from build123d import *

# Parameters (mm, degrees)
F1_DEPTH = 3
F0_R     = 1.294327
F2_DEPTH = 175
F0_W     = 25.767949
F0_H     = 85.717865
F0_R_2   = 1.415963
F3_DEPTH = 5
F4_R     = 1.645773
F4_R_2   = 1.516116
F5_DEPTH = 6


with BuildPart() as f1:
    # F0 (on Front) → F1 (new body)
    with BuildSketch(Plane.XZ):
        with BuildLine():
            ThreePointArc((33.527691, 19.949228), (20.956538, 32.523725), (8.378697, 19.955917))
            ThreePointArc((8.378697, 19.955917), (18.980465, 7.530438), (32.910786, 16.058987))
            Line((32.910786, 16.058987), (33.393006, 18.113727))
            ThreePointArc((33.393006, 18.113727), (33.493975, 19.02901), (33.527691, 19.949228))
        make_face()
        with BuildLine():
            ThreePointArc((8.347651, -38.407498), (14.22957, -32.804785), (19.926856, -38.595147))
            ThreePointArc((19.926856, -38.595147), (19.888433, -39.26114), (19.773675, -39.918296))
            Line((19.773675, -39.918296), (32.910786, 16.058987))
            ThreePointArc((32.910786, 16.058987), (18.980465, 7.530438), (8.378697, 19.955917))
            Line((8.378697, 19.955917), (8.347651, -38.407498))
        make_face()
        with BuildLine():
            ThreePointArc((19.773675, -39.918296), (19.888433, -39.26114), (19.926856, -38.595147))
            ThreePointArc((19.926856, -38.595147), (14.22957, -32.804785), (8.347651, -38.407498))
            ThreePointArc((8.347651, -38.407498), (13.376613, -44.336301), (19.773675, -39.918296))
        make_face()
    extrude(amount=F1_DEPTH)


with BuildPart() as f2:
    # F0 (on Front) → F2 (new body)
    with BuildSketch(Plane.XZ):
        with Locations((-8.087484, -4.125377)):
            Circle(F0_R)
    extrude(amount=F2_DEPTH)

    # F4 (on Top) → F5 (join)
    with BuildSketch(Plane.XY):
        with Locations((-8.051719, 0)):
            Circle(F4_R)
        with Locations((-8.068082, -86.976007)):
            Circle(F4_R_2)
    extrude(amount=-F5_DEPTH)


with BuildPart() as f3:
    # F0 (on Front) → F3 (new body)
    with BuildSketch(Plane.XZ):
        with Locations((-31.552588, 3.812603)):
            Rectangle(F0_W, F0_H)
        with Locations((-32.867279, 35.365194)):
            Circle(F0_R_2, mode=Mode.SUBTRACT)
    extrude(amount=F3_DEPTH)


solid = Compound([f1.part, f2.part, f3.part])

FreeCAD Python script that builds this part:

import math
import FreeCAD as App
import Part
import Sketcher

V = App.Vector

doc = App.newDocument("Part")
body = doc.addObject("PartDesign::Body", "Body")

# Sketch on XZ plane
sketch1 = body.newObject("Sketcher::SketchObject", "Sketch")
sketch1.AttachmentSupport = (doc.getObject("XZ_Plane"), [""])
sketch1.MapMode = "FlatFace"
sketch1.addGeometry(Part.ArcOfCircle(Part.Circle(V(20.953193, 19.949228, 0), V(0, 0, 1), 12.574498), math.radians(0.000002), math.radians(179.969519)), False)
sketch1.addGeometry(Part.LineSegment(V(8.378697, 19.955917, 0), V(8.347651, -38.407498, 0)), False)
sketch1.addGeometry(Part.ArcOfCircle(Part.Circle(V(14.135733, -38.595147, 0), V(0, 0, 1), 5.791123), math.radians(178.143124), math.radians(346.792474)), False)
sketch1.addGeometry(Part.LineSegment(V(19.773675, -39.918296, 0), V(32.910786, 16.058987, 0)), False)
sketch1.addGeometry(Part.LineSegment(V(32.910786, 16.058987, 0), V(33.393006, 18.113727, 0)), False)
sketch1.addGeometry(Part.ArcOfCircle(Part.Circle(V(20.953321, 19.949215, 0), V(0, 0, 1), 12.57437), math.radians(-8.393489), math.radians(0.000057)), False)
sketch1.addConstraint(Sketcher.Constraint("Coincident", 0, 2, 1, 1))
sketch1.addConstraint(Sketcher.Constraint("Coincident", 1, 2, 2, 1))
sketch1.addConstraint(Sketcher.Constraint("Coincident", 2, 2, 3, 1))
sketch1.addConstraint(Sketcher.Constraint("Coincident", 3, 2, 4, 1))
sketch1.addConstraint(Sketcher.Constraint("Coincident", 4, 2, 5, 1))
sketch1.addConstraint(Sketcher.Constraint("Coincident", 5, 2, 0, 1))
sketch1.addConstraint(Sketcher.Constraint("Radius", 5, 12.57437))
sketch1.addConstraint(Sketcher.Constraint("Radius", 0, 12.574498))
sketch1.addConstraint(Sketcher.Constraint("Radius", 2, 5.791123))
sketch1.addConstraint(Sketcher.Constraint("DistanceY", 5, 3, 0, 2, 0.006702))
sketch1.addConstraint(Sketcher.Constraint("DistanceY", 4, 2, 0, 3, 1.835501))
sketch1.addConstraint(Sketcher.Constraint("DistanceY", 4, 2, 5, 2, 1.835501))
sketch1.addConstraint(Sketcher.Constraint("DistanceX", -1, 1, 5, 3, 20.953321))
sketch1.addConstraint(Sketcher.Constraint("DistanceX", -1, 1, 1, 2, 8.347651))
sketch1.addConstraint(Sketcher.Constraint("DistanceY", -1, 1, 5, 2, 19.949228))
sketch1.addConstraint(Sketcher.Constraint("DistanceX", 2, 3, 0, 3, 6.81746))
sketch1.addConstraint(Sketcher.Constraint("DistanceY", 0, 3, 0, 2, 0.006689))
sketch1.addConstraint(Sketcher.Constraint("DistanceX", 2, 3, 2, 2, 5.637942))
sketch1.addConstraint(Sketcher.Constraint("DistanceY", 2, 2, 5, 3, 59.867511))
sketch1.addConstraint(Sketcher.Constraint("DistanceY", 3, 2, 5, 3, 3.890228))
sketch1.addConstraint(Sketcher.Constraint("DistanceX", 0, 2, 3, 2, 24.532089))
pad1 = body.newObject("PartDesign::Pad", "Pad")
pad1.Profile = sketch1
pad1.Length = 3
body2 = doc.addObject("PartDesign::Body", "Body001")

# Sketch on XZ plane
sketch2 = body2.newObject("Sketcher::SketchObject", "Sketch001")
sketch2.AttachmentSupport = (doc.getObject("XZ_Plane001"), [""])
sketch2.MapMode = "FlatFace"
sketch2.addGeometry(Part.Circle(V(-8.087484, -4.125377, 0), V(0, 0, 1), 1.294327), False)
sketch2.addConstraint(Sketcher.Constraint("Diameter", 0, 2.588654))
sketch2.addConstraint(Sketcher.Constraint("DistanceX", 0, 3, -1, 1, 8.087484))
sketch2.addConstraint(Sketcher.Constraint("DistanceY", 0, 3, -1, 1, 4.125377))
pad2 = body2.newObject("PartDesign::Pad", "Pad001")
pad2.Profile = sketch2
pad2.Length = 175

# Sketch on XY plane
sketch3 = body2.newObject("Sketcher::SketchObject", "Sketch002")
sketch3.AttachmentSupport = (doc.getObject("XY_Plane001"), [""])
sketch3.MapMode = "FlatFace"
sketch3.addGeometry(Part.Circle(V(-8.051719, 0, 0), V(0, 0, 1), 1.645773), False)
sketch3.addGeometry(Part.Circle(V(-8.068082, -86.976007, 0), V(0, 0, 1), 1.516116), False)
sketch3.addConstraint(Sketcher.Constraint("PointOnObject", 0, 3, -1))
sketch3.addConstraint(Sketcher.Constraint("Diameter", 1, 3.032232))
sketch3.addConstraint(Sketcher.Constraint("Diameter", 0, 3.291546))
sketch3.addConstraint(Sketcher.Constraint("DistanceX", 0, 3, -1, 1, 8.051719))
sketch3.addConstraint(Sketcher.Constraint("DistanceX", 1, 3, -1, 1, 8.068082))
sketch3.addConstraint(Sketcher.Constraint("DistanceY", 1, 3, -1, 1, 86.976007))
pad3 = body2.newObject("PartDesign::Pad", "Pad002")
pad3.Profile = sketch3
pad3.Length = 6
pad3.Reversed = True
body3 = doc.addObject("PartDesign::Body", "Body002")

# Sketch on XZ plane
sketch4 = body3.newObject("Sketcher::SketchObject", "Sketch003")
sketch4.AttachmentSupport = (doc.getObject("XZ_Plane002"), [""])
sketch4.MapMode = "FlatFace"
sketch4.addGeometry(Part.LineSegment(V(-44.436563, 46.671535, 0), V(-44.436563, -39.046329, 0)), False)
sketch4.addGeometry(Part.LineSegment(V(-44.436563, -39.046329, 0), V(-18.668613, -39.046329, 0)), False)
sketch4.addGeometry(Part.LineSegment(V(-18.668613, -39.046329, 0), V(-18.668613, 46.671535, 0)), False)
sketch4.addGeometry(Part.LineSegment(V(-18.668613, 46.671535, 0), V(-44.436563, 46.671535, 0)), False)
sketch4.addGeometry(Part.Circle(V(-32.867279, 35.365194, 0), V(0, 0, 1), 1.415963), False)
sketch4.addConstraint(Sketcher.Constraint("Coincident", 0, 2, 1, 1))
sketch4.addConstraint(Sketcher.Constraint("Coincident", 1, 2, 2, 1))
sketch4.addConstraint(Sketcher.Constraint("Coincident", 2, 2, 3, 1))
sketch4.addConstraint(Sketcher.Constraint("Coincident", 3, 2, 0, 1))
sketch4.addConstraint(Sketcher.Constraint("Vertical", 0))
sketch4.addConstraint(Sketcher.Constraint("Horizontal", 1))
sketch4.addConstraint(Sketcher.Constraint("Vertical", 2))
sketch4.addConstraint(Sketcher.Constraint("Horizontal", 3))
sketch4.addConstraint(Sketcher.Constraint("Diameter", 4, 2.831926))
sketch4.addConstraint(Sketcher.Constraint("DistanceX", 1, 1, 1, 2, 25.767949))
sketch4.addConstraint(Sketcher.Constraint("DistanceY", 0, 2, 0, 1, 85.717865))
sketch4.addConstraint(Sketcher.Constraint("DistanceX", 4, 3, -1, 1, 32.867279))
sketch4.addConstraint(Sketcher.Constraint("DistanceY", 0, 2, -1, 1, 39.046329))
sketch4.addConstraint(Sketcher.Constraint("DistanceY", 4, 3, 2, 2, 11.306341))
sketch4.addConstraint(Sketcher.Constraint("DistanceX", 0, 2, -1, 1, 44.436563))
pad4 = body3.newObject("PartDesign::Pad", "Pad003")
pad4.Profile = sketch4
pad4.Length = 5

doc.recompute()
